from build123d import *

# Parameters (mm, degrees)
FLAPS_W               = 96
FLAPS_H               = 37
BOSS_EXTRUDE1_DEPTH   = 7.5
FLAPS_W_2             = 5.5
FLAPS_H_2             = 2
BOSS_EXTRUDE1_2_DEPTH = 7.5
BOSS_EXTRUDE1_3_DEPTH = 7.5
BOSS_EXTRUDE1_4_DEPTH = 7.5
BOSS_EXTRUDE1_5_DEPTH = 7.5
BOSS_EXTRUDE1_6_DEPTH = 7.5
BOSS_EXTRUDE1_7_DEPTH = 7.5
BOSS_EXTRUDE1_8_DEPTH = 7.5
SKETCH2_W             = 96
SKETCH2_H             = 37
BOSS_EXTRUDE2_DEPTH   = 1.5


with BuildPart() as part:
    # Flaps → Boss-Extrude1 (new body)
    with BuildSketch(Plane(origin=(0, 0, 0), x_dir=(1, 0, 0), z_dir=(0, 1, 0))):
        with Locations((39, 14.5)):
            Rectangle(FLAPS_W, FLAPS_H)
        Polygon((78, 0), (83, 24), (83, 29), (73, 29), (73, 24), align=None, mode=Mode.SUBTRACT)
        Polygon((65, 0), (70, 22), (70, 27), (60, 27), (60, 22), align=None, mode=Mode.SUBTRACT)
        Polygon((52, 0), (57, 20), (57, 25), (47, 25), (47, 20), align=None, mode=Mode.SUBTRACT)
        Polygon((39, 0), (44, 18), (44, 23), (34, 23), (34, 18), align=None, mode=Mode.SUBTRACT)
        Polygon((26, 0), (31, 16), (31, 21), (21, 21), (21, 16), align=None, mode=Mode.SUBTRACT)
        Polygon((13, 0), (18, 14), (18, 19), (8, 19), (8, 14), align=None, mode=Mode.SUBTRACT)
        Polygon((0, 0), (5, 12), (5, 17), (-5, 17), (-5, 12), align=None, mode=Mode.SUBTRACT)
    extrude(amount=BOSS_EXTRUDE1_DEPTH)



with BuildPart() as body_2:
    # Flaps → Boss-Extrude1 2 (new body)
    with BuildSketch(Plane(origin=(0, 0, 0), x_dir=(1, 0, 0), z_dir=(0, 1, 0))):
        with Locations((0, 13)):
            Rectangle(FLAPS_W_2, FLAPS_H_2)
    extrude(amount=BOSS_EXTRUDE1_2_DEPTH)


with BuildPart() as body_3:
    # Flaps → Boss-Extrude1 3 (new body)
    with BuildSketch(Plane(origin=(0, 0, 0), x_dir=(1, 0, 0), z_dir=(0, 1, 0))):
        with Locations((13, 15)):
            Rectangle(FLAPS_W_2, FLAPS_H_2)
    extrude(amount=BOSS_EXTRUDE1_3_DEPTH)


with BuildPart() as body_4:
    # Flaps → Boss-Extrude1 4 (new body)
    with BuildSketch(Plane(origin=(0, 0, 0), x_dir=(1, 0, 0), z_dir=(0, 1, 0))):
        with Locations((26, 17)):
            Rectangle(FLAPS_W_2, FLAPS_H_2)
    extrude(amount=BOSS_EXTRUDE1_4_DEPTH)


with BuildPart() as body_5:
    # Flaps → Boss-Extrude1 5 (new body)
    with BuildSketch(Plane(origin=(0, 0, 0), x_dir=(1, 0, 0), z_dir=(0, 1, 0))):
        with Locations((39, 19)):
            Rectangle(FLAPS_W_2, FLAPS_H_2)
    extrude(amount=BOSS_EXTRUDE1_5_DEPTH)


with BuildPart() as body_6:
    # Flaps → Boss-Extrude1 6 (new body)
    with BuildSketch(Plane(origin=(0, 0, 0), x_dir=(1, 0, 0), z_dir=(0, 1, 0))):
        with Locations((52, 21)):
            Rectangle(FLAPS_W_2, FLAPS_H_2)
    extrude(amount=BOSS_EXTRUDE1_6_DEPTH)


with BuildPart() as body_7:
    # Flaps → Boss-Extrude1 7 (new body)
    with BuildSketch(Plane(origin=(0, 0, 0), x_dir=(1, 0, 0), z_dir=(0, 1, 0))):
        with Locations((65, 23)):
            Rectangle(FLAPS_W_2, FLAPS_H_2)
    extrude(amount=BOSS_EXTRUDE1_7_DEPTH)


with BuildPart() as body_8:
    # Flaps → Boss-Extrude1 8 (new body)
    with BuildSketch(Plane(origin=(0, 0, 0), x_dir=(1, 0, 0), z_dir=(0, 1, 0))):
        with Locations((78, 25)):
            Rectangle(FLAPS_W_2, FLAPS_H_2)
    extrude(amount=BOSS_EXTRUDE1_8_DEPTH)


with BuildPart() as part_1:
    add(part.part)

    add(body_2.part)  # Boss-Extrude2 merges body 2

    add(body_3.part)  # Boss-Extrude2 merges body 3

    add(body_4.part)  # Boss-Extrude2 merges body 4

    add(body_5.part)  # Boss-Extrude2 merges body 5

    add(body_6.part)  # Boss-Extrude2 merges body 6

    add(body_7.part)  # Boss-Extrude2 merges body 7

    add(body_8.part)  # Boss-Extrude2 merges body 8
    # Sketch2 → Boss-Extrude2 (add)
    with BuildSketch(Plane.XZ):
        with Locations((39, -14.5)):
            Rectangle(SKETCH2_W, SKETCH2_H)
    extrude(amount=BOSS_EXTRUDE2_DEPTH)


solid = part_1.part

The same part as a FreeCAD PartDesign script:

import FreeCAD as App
import Part
import Sketcher
Q = App.Units.Quantity


def add_polygon(sketch, points):
    """Adds a closed chain of lines whose ends are joined by coincident constraints."""
    first, n = sketch.GeometryCount, len(points)
    for a, b in zip(points, points[1:] + points[:1]):
        sketch.addGeometry(Part.LineSegment(App.Vector(*a, 0), App.Vector(*b, 0)), False)
    for i in range(n):
        sketch.addConstraint(Sketcher.Constraint("Coincident", first + i, 2, first + (i + 1) % n, 1))

doc = App.newDocument("Part")
body = doc.addObject("PartDesign::Body", "Body")

sketch1 = body.newObject("Sketcher::SketchObject", "Sketch")
sketch1.AttachmentSupport = (doc.getObject("XZ_Plane"), [""])
sketch1.MapMode = "FlatFace"
add_polygon(sketch1, [(-9, -33), (-9, 4), (87, 4), (87, -33)])
add_polygon(sketch1, [(5, -12), (0, 0), (-5, -12), (-5, -17), (5, -17)])
add_polygon(sketch1, [(18, -14), (13, 0), (8, -14), (8, -19), (18, -19)])
add_polygon(sketch1, [(31, -16), (26, 0), (21, -16), (21, -21), (31, -21)])
add_polygon(sketch1, [(44, -18), (39, 0), (34, -18), (34, -23), (44, -23)])
add_polygon(sketch1, [(57, -20), (52, 0), (47, -20), (47, -25), (57, -25)])
add_polygon(sketch1, [(70, -22), (65, 0), (60, -22), (60, -27), (70, -27)])
add_polygon(sketch1, [(83, -24), (78, 0), (73, -24), (73, -29), (83, -29)])
sketch1.addConstraint(Sketcher.Constraint("Vertical", 0))
sketch1.addConstraint(Sketcher.Constraint("Horizontal", 1))
sketch1.addConstraint(Sketcher.Constraint("Vertical", 2))
sketch1.addConstraint(Sketcher.Constraint("Horizontal", 3))
sketch1.addConstraint(Sketcher.Constraint("Vertical", 6))
sketch1.addConstraint(Sketcher.Constraint("Horizontal", 7))
sketch1.addConstraint(Sketcher.Constraint("Vertical", 8))
sketch1.addConstraint(Sketcher.Constraint("Vertical", 11))
sketch1.addConstraint(Sketcher.Constraint("Horizontal", 12))
sketch1.addConstraint(Sketcher.Constraint("Vertical", 13))
sketch1.addConstraint(Sketcher.Constraint("Vertical", 16))
sketch1.addConstraint(Sketcher.Constraint("Horizontal", 17))
sketch1.addConstraint(Sketcher.Constraint("Vertical", 18))
sketch1.addConstraint(Sketcher.Constraint("Vertical", 21))
sketch1.addConstraint(Sketcher.Constraint("Horizontal", 22))
sketch1.addConstraint(Sketcher.Constraint("Vertical", 23))
sketch1.addConstraint(Sketcher.Constraint("Vertical", 26))
sketch1.addConstraint(Sketcher.Constraint("Horizontal", 27))
sketch1.addConstraint(Sketcher.Constraint("Vertical", 28))
sketch1.addConstraint(Sketcher.Constraint("Vertical", 31))
sketch1.addConstraint(Sketcher.Constraint("Horizontal", 32))
sketch1.addConstraint(Sketcher.Constraint("Vertical", 33))
sketch1.addConstraint(Sketcher.Constraint("Vertical", 36))
sketch1.addConstraint(Sketcher.Constraint("Horizontal", 37))
sketch1.addConstraint(Sketcher.Constraint("Vertical", 38))
sketch1.addConstraint(Sketcher.Constraint("Coincident", 4, 2, -1, 1))
sketch1.addConstraint(Sketcher.Constraint("Symmetric", 5, 2, 8, 2, -2))
sketch1.addConstraint(Sketcher.Constraint("PointOnObject", 9, 2, -1))
sketch1.addConstraint(Sketcher.Constraint("PointOnObject", 14, 2, -1))
sketch1.addConstraint(Sketcher.Constraint("PointOnObject", 19, 2, -1))
sketch1.addConstraint(Sketcher.Constraint("PointOnObject", 24, 2, -1))
sketch1.addConstraint(Sketcher.Constraint("PointOnObject", 29, 2, -1))
sketch1.addConstraint(Sketcher.Constraint("PointOnObject", 34, 2, -1))
sketch1.addConstraint(Sketcher.Constraint("Horizontal", 10, 2, 13, 2))
sketch1.addConstraint(Sketcher.Constraint("Horizontal", 15, 2, 18, 2))
sketch1.addConstraint(Sketcher.Constraint("Horizontal", 20, 2, 23, 2))
sketch1.addConstraint(Sketcher.Constraint("Horizontal", 25, 2, 28, 2))
sketch1.addConstraint(Sketcher.Constraint("Horizontal", 30, 2, 33, 2))
sketch1.addConstraint(Sketcher.Constraint("Horizontal", 35, 2, 38, 2))
sketch1.addConstraint(Sketcher.Constraint("Equal", 7, 12))
sketch1.addConstraint(Sketcher.Constraint("Equal", 12, 17))
sketch1.addConstraint(Sketcher.Constraint("Equal", 17, 22))
sketch1.addConstraint(Sketcher.Constraint("Equal", 22, 27))
sketch1.addConstraint(Sketcher.Constraint("Equal", 27, 32))
sketch1.addConstraint(Sketcher.Constraint("Equal", 32, 37))
sketch1.addConstraint(Sketcher.Constraint("Equal", 8, 11))
sketch1.addConstraint(Sketcher.Constraint("Equal", 13, 16))
sketch1.addConstraint(Sketcher.Constraint("Equal", 18, 21))
sketch1.addConstraint(Sketcher.Constraint("Equal", 23, 26))
sketch1.addConstraint(Sketcher.Constraint("Equal", 28, 31))
sketch1.addConstraint(Sketcher.Constraint("Equal", 33, 36))
sketch1.addConstraint(Sketcher.Constraint("Equal", 9, 10))
sketch1.addConstraint(Sketcher.Constraint("Equal", 14, 15))
sketch1.addConstraint(Sketcher.Constraint("Equal", 19, 20))
sketch1.addConstraint(Sketcher.Constraint("Equal", 24, 25))
sketch1.addConstraint(Sketcher.Constraint("Equal", 29, 30))
sketch1.addConstraint(Sketcher.Constraint("Equal", 34, 35))
sketch1.addConstraint(Sketcher.Constraint("DistanceX", 1, 1, 1, 2, Q("96 mm")))
sketch1.addConstraint(Sketcher.Constraint("DistanceX", 7, 1, 7, 2, Q("10 mm")))
sketch1.addConstraint(Sketcher.Constraint("DistanceY", 0, 1, 0, 2, Q("37 mm")))
sketch1.addConstraint(Sketcher.Constraint("DistanceY", 6, 2, 6, 1, Q("5 mm")))
sketch1.addConstraint(Sketcher.Constraint("Distance", 4, Q("13 mm")))
sketch1.addConstraint(Sketcher.Constraint("DistanceX", 0, 2, -1, 1, Q("9 mm")))
sketch1.addConstraint(Sketcher.Constraint("DistanceY", -1, 1, 0, 2, Q("4 mm")))
sketch1.addConstraint(Sketcher.Constraint("DistanceX", -1, 1, 9, 2, Q("13 mm")))
sketch1.addConstraint(Sketcher.Constraint("DistanceY", 10, 2, -1, 1, Q("14 mm")))
sketch1.addConstraint(Sketcher.Constraint("DistanceX", -1, 1, 14, 2, Q("26 mm")))
sketch1.addConstraint(Sketcher.Constraint("DistanceY", 15, 2, -1, 1, Q("16 mm")))
sketch1.addConstraint(Sketcher.Constraint("DistanceX", -1, 1, 19, 2, Q("39 mm")))
sketch1.addConstraint(Sketcher.Constraint("DistanceY", 20, 2, -1, 1, Q("18 mm")))
sketch1.addConstraint(Sketcher.Constraint("DistanceX", -1, 1, 24, 2, Q("52 mm")))
sketch1.addConstraint(Sketcher.Constraint("DistanceY", 25, 2, -1, 1, Q("20 mm")))
sketch1.addConstraint(Sketcher.Constraint("DistanceX", -1, 1, 29, 2, Q("65 mm")))
sketch1.addConstraint(Sketcher.Constraint("DistanceY", 30, 2, -1, 1, Q("22 mm")))
sketch1.addConstraint(Sketcher.Constraint("DistanceX", -1, 1, 34, 2, Q("78 mm")))
sketch1.addConstraint(Sketcher.Constraint("DistanceY", 35, 2, -1, 1, Q("24 mm")))
pad1 = body.newObject("PartDesign::Pad", "Pad")
pad1.Profile = sketch1
pad1.Length = 7.5
pad1.Reversed = True
body2 = doc.addObject("PartDesign::Body", "Body001")

sketch2 = body2.newObject("Sketcher::SketchObject", "Sketch001")
sketch2.AttachmentSupport = (doc.getObject("XZ_Plane001"), [""])
sketch2.MapMode = "FlatFace"
add_polygon(sketch2, [(-2.8, -14), (-2.8, -12), (2.8, -12), (2.8, -14)])
sketch2.addConstraint(Sketcher.Constraint("Vertical", 0))
sketch2.addConstraint(Sketcher.Constraint("Horizontal", 1))
sketch2.addConstraint(Sketcher.Constraint("Vertical", 2))
sketch2.addConstraint(Sketcher.Constraint("Horizontal", 3))
sketch2.addConstraint(Sketcher.Constraint("DistanceY", 0, 1, 0, 2, Q("2 mm")))
sketch2.addConstraint(Sketcher.Constraint("DistanceX", 1, 1, 1, 2, Q("5.5 mm")))
sketch2.addConstraint(Sketcher.Constraint("DistanceY", 0, 2, -1, 1, Q("12 mm")))
sketch2.addConstraint(Sketcher.Constraint("DistanceX", 0, 2, -1, 1, Q("2.75 mm")))
pad2 = body2.newObject("PartDesign::Pad", "Pad001")
pad2.Profile = sketch2
pad2.Length = 7.5
pad2.Reversed = True
body3 = doc.addObject("PartDesign::Body", "Body002")

sketch3 = body3.newObject("Sketcher::SketchObject", "Sketch002")
sketch3.AttachmentSupport = (doc.getObject("XZ_Plane002"), [""])
sketch3.MapMode = "FlatFace"
add_polygon(sketch3, [(10.2, -16), (10.2, -14), (15.8, -14), (15.8, -16)])
sketch3.addConstraint(Sketcher.Constraint("Vertical", 0))
sketch3.addConstraint(Sketcher.Constraint("Horizontal", 1))
sketch3.addConstraint(Sketcher.Constraint("Vertical", 2))
sketch3.addConstraint(Sketcher.Constraint("Horizontal", 3))
sketch3.addConstraint(Sketcher.Constraint("DistanceY", 0, 1, 0, 2, Q("2 mm")))
sketch3.addConstraint(Sketcher.Constraint("DistanceX", 1, 1, 1, 2, Q("5.5 mm")))
sketch3.addConstraint(Sketcher.Constraint("DistanceY", 0, 2, -1, 1, Q("14 mm")))
sketch3.addConstraint(Sketcher.Constraint("DistanceX", -1, 1, 0, 2, Q("10.25 mm")))
pad3 = body3.newObject("PartDesign::Pad", "Pad002")
pad3.Profile = sketch3
pad3.Length = 7.5
pad3.Reversed = True
body4 = doc.addObject("PartDesign::Body", "Body003")

sketch4 = body4.newObject("Sketcher::SketchObject", "Sketch003")
sketch4.AttachmentSupport = (doc.getObject("XZ_Plane003"), [""])
sketch4.MapMode = "FlatFace"
add_polygon(sketch4, [(23.2, -18), (23.2, -16), (28.8, -16), (28.8, -18)])
sketch4.addConstraint(Sketcher.Constraint("Vertical", 0))
sketch4.addConstraint(Sketcher.Constraint("Horizontal", 1))
sketch4.addConstraint(Sketcher.Constraint("Vertical", 2))
sketch4.addConstraint(Sketcher.Constraint("Horizontal", 3))
sketch4.addConstraint(Sketcher.Constraint("DistanceY", 0, 1, 0, 2, Q("2 mm")))
sketch4.addConstraint(Sketcher.Constraint("DistanceX", 1, 1, 1, 2, Q("5.5 mm")))
sketch4.addConstraint(Sketcher.Constraint("DistanceY", 0, 2, -1, 1, Q("16 mm")))
sketch4.addConstraint(Sketcher.Constraint("DistanceX", -1, 1, 0, 2, Q("23.25 mm")))
pad4 = body4.newObject("PartDesign::Pad", "Pad003")
pad4.Profile = sketch4
pad4.Length = 7.5
pad4.Reversed = True
body5 = doc.addObject("PartDesign::Body", "Body004")

sketch5 = body5.newObject("Sketcher::SketchObject", "Sketch004")
sketch5.AttachmentSupport = (doc.getObject("XZ_Plane004"), [""])
sketch5.MapMode = "FlatFace"
add_polygon(sketch5, [(36.2, -20), (36.2, -18), (41.8, -18), (41.8, -20)])
sketch5.addConstraint(Sketcher.Constraint("Vertical", 0))
sketch5.addConstraint(Sketcher.Constraint("Horizontal", 1))
sketch5.addConstraint(Sketcher.Constraint("Vertical", 2))
sketch5.addConstraint(Sketcher.Constraint("Horizontal", 3))
sketch5.addConstraint(Sketcher.Constraint("DistanceY", 0, 1, 0, 2, Q("2 mm")))
sketch5.addConstraint(Sketcher.Constraint("DistanceX", 1, 1, 1, 2, Q("5.5 mm")))
sketch5.addConstraint(Sketcher.Constraint("DistanceY", 0, 2, -1, 1, Q("18 mm")))
sketch5.addConstraint(Sketcher.Constraint("DistanceX", -1, 1, 0, 2, Q("36.25 mm")))
pad5 = body5.newObject("PartDesign::Pad", "Pad004")
pad5.Profile = sketch5
pad5.Length = 7.5
pad5.Reversed = True
body6 = doc.addObject("PartDesign::Body", "Body005")

sketch6 = body6.newObject("Sketcher::SketchObject", "Sketch005")
sketch6.AttachmentSupport = (doc.getObject("XZ_Plane005"), [""])
sketch6.MapMode = "FlatFace"
add_polygon(sketch6, [(49.2, -22), (49.2, -20), (54.8, -20), (54.8, -22)])
sketch6.addConstraint(Sketcher.Constraint("Vertical", 0))
sketch6.addConstraint(Sketcher.Constraint("Horizontal", 1))
sketch6.addConstraint(Sketcher.Constraint("Vertical", 2))
sketch6.addConstraint(Sketcher.Constraint("Horizontal", 3))
sketch6.addConstraint(Sketcher.Constraint("DistanceY", 0, 1, 0, 2, Q("2 mm")))
sketch6.addConstraint(Sketcher.Constraint("DistanceX", 1, 1, 1, 2, Q("5.5 mm")))
sketch6.addConstraint(Sketcher.Constraint("DistanceY", 0, 2, -1, 1, Q("20 mm")))
sketch6.addConstraint(Sketcher.Constraint("DistanceX", -1, 1, 0, 2, Q("49.25 mm")))
pad6 = body6.newObject("PartDesign::Pad", "Pad005")
pad6.Profile = sketch6
pad6.Length = 7.5
pad6.Reversed = True
body7 = doc.addObject("PartDesign::Body", "Body006")

sketch7 = body7.newObject("Sketcher::SketchObject", "Sketch006")
sketch7.AttachmentSupport = (doc.getObject("XZ_Plane006"), [""])
sketch7.MapMode = "FlatFace"
add_polygon(sketch7, [(62.2, -24), (62.2, -22), (67.8, -22), (67.8, -24)])
sketch7.addConstraint(Sketcher.Constraint("Vertical", 0))
sketch7.addConstraint(Sketcher.Constraint("Horizontal", 1))
sketch7.addConstraint(Sketcher.Constraint("Vertical", 2))
sketch7.addConstraint(Sketcher.Constraint("Horizontal", 3))
sketch7.addConstraint(Sketcher.Constraint("DistanceY", 0, 1, 0, 2, Q("2 mm")))
sketch7.addConstraint(Sketcher.Constraint("DistanceX", 1, 1, 1, 2, Q("5.5 mm")))
sketch7.addConstraint(Sketcher.Constraint("DistanceY", 0, 2, -1, 1, Q("22 mm")))
sketch7.addConstraint(Sketcher.Constraint("DistanceX", -1, 1, 0, 2, Q("62.25 mm")))
pad7 = body7.newObject("PartDesign::Pad", "Pad006")
pad7.Profile = sketch7
pad7.Length = 7.5
pad7.Reversed = True
body8 = doc.addObject("PartDesign::Body", "Body007")

sketch8 = body8.newObject("Sketcher::SketchObject", "Sketch007")
sketch8.AttachmentSupport = (doc.getObject("XZ_Plane007"), [""])
sketch8.MapMode = "FlatFace"
add_polygon(sketch8, [(75.2, -26), (75.2, -24), (80.8, -24), (80.8, -26)])
sketch8.addConstraint(Sketcher.Constraint("Vertical", 0))
sketch8.addConstraint(Sketcher.Constraint("Horizontal", 1))
sketch8.addConstraint(Sketcher.Constraint("Vertical", 2))
sketch8.addConstraint(Sketcher.Constraint("Horizontal", 3))
sketch8.addConstraint(Sketcher.Constraint("DistanceY", 0, 1, 0, 2, Q("2 mm")))
sketch8.addConstraint(Sketcher.Constraint("DistanceX", 1, 1, 1, 2, Q("5.5 mm")))
sketch8.addConstraint(Sketcher.Constraint("DistanceY", 0, 2, -1, 1, Q("24 mm")))
sketch8.addConstraint(Sketcher.Constraint("DistanceX", -1, 1, 0, 2, Q("75.25 mm")))
pad8 = body8.newObject("PartDesign::Pad", "Pad007")
pad8.Profile = sketch8
pad8.Length = 7.5
pad8.Reversed = True
body.AllowCompound = True
doc.recompute()

boolean = body.newObject("PartDesign::Boolean", "Boolean")
boolean.Type = "Fuse"
boolean.addObjects([body2])
doc.recompute()

boolean2 = body.newObject("PartDesign::Boolean", "Boolean001")
boolean2.Type = "Fuse"
boolean2.addObjects([body3])
doc.recompute()

boolean3 = body.newObject("PartDesign::Boolean", "Boolean002")
boolean3.Type = "Fuse"
boolean3.addObjects([body4])
doc.recompute()

boolean4 = body.newObject("PartDesign::Boolean", "Boolean003")
boolean4.Type = "Fuse"
boolean4.addObjects([body5])
doc.recompute()

boolean5 = body.newObject("PartDesign::Boolean", "Boolean004")
boolean5.Type = "Fuse"
boolean5.addObjects([body6])
doc.recompute()

boolean6 = body.newObject("PartDesign::Boolean", "Boolean005")
boolean6.Type = "Fuse"
boolean6.addObjects([body7])
doc.recompute()

boolean7 = body.newObject("PartDesign::Boolean", "Boolean006")
boolean7.Type = "Fuse"
boolean7.addObjects([body8])

sketch9 = body.newObject("Sketcher::SketchObject", "Sketch008")
sketch9.AttachmentSupport = (doc.getObject("XZ_Plane"), [""])
sketch9.MapMode = "FlatFace"
add_polygon(sketch9, [(-9, 4), (-9, -33), (87, -33), (87, 4)])
sketch9.addConstraint(Sketcher.Constraint("Vertical", 0))
sketch9.addConstraint(Sketcher.Constraint("Horizontal", 1))
sketch9.addConstraint(Sketcher.Constraint("Vertical", 2))
sketch9.addConstraint(Sketcher.Constraint("Horizontal", 3))
sketch9.addConstraint(Sketcher.Constraint("DistanceX", 1, 1, 1, 2, Q("96 mm")))
sketch9.addConstraint(Sketcher.Constraint("DistanceY", 0, 2, 0, 1, Q("37 mm")))
sketch9.addConstraint(Sketcher.Constraint("DistanceX", 0, 2, -1, 1, Q("9 mm")))
sketch9.addConstraint(Sketcher.Constraint("DistanceY", 0, 2, -1, 1, Q("33 mm")))
pad9 = body.newObject("PartDesign::Pad", "Pad008")
pad9.Profile = sketch9
pad9.Length = 1.5

doc.recompute()
